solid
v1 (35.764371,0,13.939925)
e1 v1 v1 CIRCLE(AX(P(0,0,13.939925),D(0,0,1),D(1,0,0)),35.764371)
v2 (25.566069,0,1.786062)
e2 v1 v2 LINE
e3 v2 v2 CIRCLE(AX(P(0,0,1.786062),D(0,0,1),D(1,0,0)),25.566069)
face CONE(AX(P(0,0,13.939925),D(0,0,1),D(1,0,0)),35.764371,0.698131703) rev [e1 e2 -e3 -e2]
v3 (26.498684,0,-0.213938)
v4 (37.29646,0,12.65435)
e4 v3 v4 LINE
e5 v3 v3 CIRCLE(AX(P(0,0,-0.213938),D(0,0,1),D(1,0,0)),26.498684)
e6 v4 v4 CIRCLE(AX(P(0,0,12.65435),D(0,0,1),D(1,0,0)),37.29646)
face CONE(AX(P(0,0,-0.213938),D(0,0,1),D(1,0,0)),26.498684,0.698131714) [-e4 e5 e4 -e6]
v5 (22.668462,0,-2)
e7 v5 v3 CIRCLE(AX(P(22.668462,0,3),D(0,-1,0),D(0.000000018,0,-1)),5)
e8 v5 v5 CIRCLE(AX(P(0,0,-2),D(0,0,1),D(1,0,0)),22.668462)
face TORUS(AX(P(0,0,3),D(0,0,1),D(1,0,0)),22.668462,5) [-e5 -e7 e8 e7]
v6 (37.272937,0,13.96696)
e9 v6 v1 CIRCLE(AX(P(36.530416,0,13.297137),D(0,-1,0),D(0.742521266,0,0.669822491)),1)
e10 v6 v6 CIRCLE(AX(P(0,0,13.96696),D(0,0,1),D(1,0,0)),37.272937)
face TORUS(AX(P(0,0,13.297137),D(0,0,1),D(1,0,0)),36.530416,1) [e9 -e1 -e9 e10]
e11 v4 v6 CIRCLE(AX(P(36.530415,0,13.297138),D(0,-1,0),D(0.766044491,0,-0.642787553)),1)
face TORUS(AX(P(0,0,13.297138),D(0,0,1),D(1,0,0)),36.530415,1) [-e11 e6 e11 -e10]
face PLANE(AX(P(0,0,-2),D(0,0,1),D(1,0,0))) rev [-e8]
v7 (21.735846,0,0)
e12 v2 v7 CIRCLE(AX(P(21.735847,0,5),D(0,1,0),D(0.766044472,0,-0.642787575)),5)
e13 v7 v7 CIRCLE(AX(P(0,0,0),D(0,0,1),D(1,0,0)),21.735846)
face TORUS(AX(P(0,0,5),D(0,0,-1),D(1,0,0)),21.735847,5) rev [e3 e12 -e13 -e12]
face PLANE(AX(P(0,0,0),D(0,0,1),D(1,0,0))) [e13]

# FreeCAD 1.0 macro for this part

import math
import FreeCAD as App
import Part
import Sketcher
Q = App.Units.Quantity

doc = App.newDocument("Part")
params = doc.addObject("Spreadsheet::Sheet", "Params")
for row, (alias, value) in enumerate([
    ("sketch1_radius", "5 mm"),
    ("sketch1_radius2", "1 mm"),
    ("sketch1_height", "2 mm"),
    ("revolution_angle", "360 deg"),
], start=1):
    params.set(f"A{row}", alias)
    params.set(f"B{row}", "=" + value)
    params.setAlias(f"B{row}", alias)

body = doc.addObject("PartDesign::Body", "Body")

# Sketch on XZ plane
sketch1 = body.newObject("Sketcher::SketchObject", "Sketch")
sketch1.AttachmentSupport = (doc.getObject("XZ_Plane"), [""])
sketch1.MapMode = "FlatFace"
sketch1.addGeometry(Part.LineSegment(App.Vector(21.7, 0, 0), App.Vector(0, 0, 0)), False)
sketch1.addGeometry(Part.LineSegment(App.Vector(0, 0, 0), App.Vector(0, -2, 0)), False)
sketch1.addGeometry(Part.LineSegment(App.Vector(0, -2, 0), App.Vector(22.7, -2, 0)), False)
sketch1.addGeometry(Part.ArcOfCircle(Part.Circle(App.Vector(22.7, 3, 0), App.Vector(0, 0, 1), 5), math.radians(-90), math.radians(-40)), False)
sketch1.addGeometry(Part.LineSegment(App.Vector(26.5, -0.2, 0), App.Vector(37.3, 12.7, 0)), False)
sketch1.addGeometry(Part.ArcOfCircle(Part.Circle(App.Vector(36.5, 13.3, 0), App.Vector(0, 0, 1), 1), math.radians(-40), math.radians(42)), False)
sketch1.addGeometry(Part.ArcOfCircle(Part.Circle(App.Vector(36.5, 13.3, 0), App.Vector(0, 0, 1), 1), math.radians(42), math.radians(140)), False)
sketch1.addGeometry(Part.LineSegment(App.Vector(35.8, 13.9, 0), App.Vector(25.6, 1.8, 0)), False)
sketch1.addGeometry(Part.ArcOfCircle(Part.Circle(App.Vector(21.7, 5, 0), App.Vector(0, 0, 1), 5), math.radians(-90), math.radians(-40)), False)
sketch1.addConstraint(Sketcher.Constraint("Coincident", 0, 2, 1, 1))
sketch1.addConstraint(Sketcher.Constraint("Coincident", 1, 2, 2, 1))
sketch1.addConstraint(Sketcher.Constraint("Tangent", 2, 2, 3, 1))
sketch1.addConstraint(Sketcher.Constraint("Tangent", 3, 2, 4, 1))
sketch1.addConstraint(Sketcher.Constraint("Tangent", 4, 2, 5, 1))
sketch1.addConstraint(Sketcher.Constraint("Tangent", 5, 2, 6, 1))
sketch1.addConstraint(Sketcher.Constraint("Tangent", 6, 2, 7, 1))
sketch1.addConstraint(Sketcher.Constraint("Tangent", 7, 2, 8, 2))
sketch1.addConstraint(Sketcher.Constraint("Tangent", 8, 1, 0, 1))
sketch1.addConstraint(Sketcher.Constraint("Horizontal", 0))
sketch1.addConstraint(Sketcher.Constraint("Vertical", 1))
sketch1.addConstraint(Sketcher.Constraint("Horizontal", 2))
sketch1.addConstraint(Sketcher.Constraint("Coincident", 0, 2, -1, 1))
sketch1.addConstraint(Sketcher.Constraint("Equal", 5, 6))
sketch1.addConstraint(Sketcher.Constraint("Equal", 3, 8))
sketch1.addConstraint(Sketcher.Constraint("Parallel", 4, 7))
sketch1.addConstraint(Sketcher.Constraint("Radius", 3, Q("5 mm")))
sketch1.addConstraint(Sketcher.Constraint("Radius", 5, Q("1 mm")))
sketch1.addConstraint(Sketcher.Constraint("DistanceY", 1, 2, 1, 1, Q("2 mm")))
sketch1.addConstraint(Sketcher.Constraint("Angle", 4, Q("49.999999 deg")))
sketch1.addConstraint(Sketcher.Constraint("DistanceX", 3, 3, 4, 2, Q("14.627998 mm")))
sketch1.addConstraint(Sketcher.Constraint("DistanceX", 0, 2, 0, 1, Q("21.735846 mm")))
sketch1.addConstraint(Sketcher.Constraint("DistanceY", -1, 1, 5, 2, Q("13.96696 mm")))
sketch1.setExpression("Constraints[16]", "Params.sketch1_radius")
sketch1.setExpression("Constraints[17]", "Params.sketch1_radius2")
sketch1.setExpression("Constraints[18]", "Params.sketch1_height")
revolution = body.newObject("PartDesign::Revolution", "Revolution")
revolution.Profile = sketch1
revolution.ReferenceAxis = (sketch1, ["V_Axis"])
revolution.setExpression("Angle", "Params.revolution_angle")

doc.recompute()
